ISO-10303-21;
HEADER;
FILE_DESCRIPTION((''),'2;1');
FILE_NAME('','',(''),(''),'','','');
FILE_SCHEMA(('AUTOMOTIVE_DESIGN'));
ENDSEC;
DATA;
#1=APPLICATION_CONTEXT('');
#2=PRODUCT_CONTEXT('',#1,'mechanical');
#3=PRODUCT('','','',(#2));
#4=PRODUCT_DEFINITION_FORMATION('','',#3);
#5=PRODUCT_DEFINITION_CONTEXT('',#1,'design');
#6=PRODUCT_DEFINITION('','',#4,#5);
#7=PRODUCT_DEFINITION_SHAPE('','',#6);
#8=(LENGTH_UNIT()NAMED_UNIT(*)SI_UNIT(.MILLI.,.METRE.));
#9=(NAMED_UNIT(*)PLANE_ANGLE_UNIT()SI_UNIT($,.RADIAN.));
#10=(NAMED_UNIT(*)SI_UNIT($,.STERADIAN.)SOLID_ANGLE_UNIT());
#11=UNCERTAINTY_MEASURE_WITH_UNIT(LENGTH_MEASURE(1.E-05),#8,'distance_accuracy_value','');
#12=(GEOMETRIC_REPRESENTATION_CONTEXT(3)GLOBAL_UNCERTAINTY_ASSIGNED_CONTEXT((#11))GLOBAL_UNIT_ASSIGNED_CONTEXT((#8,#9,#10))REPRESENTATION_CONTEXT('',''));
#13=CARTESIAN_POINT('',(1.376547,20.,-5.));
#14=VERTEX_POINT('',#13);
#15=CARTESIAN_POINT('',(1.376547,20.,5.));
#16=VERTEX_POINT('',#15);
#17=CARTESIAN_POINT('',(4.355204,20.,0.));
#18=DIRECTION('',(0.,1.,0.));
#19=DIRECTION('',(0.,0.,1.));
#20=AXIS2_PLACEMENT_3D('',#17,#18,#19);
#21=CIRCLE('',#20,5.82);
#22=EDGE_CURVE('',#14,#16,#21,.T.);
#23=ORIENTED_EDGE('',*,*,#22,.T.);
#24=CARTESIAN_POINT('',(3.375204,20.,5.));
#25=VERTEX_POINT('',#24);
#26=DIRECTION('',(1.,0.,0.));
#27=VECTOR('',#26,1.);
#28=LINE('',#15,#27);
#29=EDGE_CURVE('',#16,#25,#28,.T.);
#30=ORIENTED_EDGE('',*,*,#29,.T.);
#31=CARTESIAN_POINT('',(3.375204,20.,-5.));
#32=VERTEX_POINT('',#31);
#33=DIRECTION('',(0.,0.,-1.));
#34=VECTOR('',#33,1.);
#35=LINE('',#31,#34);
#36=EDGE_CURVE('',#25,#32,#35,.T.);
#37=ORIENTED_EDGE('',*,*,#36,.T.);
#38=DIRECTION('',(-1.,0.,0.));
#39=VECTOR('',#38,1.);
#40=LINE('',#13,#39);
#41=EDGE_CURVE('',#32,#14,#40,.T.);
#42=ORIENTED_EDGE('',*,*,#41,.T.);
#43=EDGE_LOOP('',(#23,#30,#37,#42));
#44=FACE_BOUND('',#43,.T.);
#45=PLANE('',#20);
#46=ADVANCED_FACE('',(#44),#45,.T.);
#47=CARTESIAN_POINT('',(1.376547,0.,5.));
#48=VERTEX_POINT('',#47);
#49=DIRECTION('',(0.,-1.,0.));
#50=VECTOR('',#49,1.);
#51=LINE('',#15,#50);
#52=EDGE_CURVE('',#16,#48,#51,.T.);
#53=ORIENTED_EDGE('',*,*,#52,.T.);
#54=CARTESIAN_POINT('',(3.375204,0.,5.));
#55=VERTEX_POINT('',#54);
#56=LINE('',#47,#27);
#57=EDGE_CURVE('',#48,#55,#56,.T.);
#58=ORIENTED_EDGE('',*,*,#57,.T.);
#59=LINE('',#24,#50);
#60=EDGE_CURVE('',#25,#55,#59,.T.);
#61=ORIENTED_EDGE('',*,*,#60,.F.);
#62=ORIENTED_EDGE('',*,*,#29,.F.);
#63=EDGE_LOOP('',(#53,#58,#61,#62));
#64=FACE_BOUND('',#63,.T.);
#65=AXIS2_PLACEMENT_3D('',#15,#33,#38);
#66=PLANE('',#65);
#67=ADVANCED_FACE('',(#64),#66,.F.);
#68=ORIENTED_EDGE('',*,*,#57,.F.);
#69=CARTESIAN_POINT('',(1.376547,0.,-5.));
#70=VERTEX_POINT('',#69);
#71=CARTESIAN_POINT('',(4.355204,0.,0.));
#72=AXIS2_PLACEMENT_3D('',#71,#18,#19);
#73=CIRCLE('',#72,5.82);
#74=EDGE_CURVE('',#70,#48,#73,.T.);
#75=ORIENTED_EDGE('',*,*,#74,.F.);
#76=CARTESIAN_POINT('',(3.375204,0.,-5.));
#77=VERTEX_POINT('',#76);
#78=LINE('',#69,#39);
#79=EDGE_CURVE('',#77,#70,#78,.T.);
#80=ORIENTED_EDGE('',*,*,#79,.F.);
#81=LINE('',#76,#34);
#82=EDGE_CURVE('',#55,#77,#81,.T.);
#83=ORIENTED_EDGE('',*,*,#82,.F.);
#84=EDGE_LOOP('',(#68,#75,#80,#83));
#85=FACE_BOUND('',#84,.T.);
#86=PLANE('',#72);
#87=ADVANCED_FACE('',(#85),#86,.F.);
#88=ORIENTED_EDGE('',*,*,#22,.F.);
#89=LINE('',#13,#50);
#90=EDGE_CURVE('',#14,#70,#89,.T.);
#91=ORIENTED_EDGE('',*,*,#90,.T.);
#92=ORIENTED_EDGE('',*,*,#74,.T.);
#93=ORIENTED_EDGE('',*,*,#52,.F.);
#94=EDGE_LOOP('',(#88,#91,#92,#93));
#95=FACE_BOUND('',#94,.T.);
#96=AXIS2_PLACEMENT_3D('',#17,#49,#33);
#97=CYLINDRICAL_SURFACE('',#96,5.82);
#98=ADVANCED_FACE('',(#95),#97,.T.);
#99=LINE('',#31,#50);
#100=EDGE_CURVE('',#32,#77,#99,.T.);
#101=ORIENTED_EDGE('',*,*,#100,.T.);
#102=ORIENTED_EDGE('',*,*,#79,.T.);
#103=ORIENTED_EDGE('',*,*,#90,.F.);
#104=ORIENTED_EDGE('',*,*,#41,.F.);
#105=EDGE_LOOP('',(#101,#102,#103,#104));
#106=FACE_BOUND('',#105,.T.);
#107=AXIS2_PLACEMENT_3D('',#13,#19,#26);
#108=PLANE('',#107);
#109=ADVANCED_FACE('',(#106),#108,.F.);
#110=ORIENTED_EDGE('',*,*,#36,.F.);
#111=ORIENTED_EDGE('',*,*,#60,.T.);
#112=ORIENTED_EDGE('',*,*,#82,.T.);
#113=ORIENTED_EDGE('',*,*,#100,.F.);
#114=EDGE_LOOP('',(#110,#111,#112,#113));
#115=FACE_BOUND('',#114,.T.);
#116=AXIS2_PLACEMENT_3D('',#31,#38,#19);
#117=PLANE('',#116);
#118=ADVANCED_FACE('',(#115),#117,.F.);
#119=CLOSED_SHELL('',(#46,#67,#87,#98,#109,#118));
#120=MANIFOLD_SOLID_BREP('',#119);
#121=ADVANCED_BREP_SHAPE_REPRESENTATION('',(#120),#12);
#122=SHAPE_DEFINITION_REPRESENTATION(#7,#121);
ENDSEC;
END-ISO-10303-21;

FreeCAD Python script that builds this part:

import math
import FreeCAD as App
import Part
import Sketcher

doc = App.newDocument("Part")
body = doc.addObject("PartDesign::Body", "Body")

sketch1 = body.newObject("Sketcher::SketchObject", "Sketch")
sketch1.AttachmentSupport = (doc.getObject("XZ_Plane"), [""])
sketch1.MapMode = "FlatFace"
sketch1.addGeometry(Part.LineSegment(App.Vector(3.4, -5, 0), App.Vector(1.4, -5, 0)), False)
sketch1.addGeometry(Part.ArcOfCircle(Part.Circle(App.Vector(4.4, 0, 0), App.Vector(0, 0, 1), 5.8), math.radians(121), math.radians(239)), False)
sketch1.addGeometry(Part.LineSegment(App.Vector(1.4, 5, 0), App.Vector(3.4, 5, 0)), False)
sketch1.addGeometry(Part.LineSegment(App.Vector(3.4, 5, 0), App.Vector(3.4, -5, 0)), False)
sketch1.addConstraint(Sketcher.Constraint("Coincident", 0, 2, 1, 2))
sketch1.addConstraint(Sketcher.Constraint("Coincident", 1, 1, 2, 1))
sketch1.addConstraint(Sketcher.Constraint("Coincident", 2, 2, 3, 1))
sketch1.addConstraint(Sketcher.Constraint("Coincident", 3, 2, 0, 1))
sketch1.addConstraint(Sketcher.Constraint("Horizontal", 0))
sketch1.addConstraint(Sketcher.Constraint("Horizontal", 2))
sketch1.addConstraint(Sketcher.Constraint("Vertical", 3))
sketch1.addConstraint(Sketcher.Constraint("Symmetric", 0, 2, 1, 1, -1))
sketch1.addConstraint(Sketcher.Constraint("DistanceY", 3, 2, 3, 1, 10.0))
sketch1.addConstraint(Sketcher.Constraint("Radius", 1, 5.82))
sketch1.addConstraint(Sketcher.Constraint("DistanceX", 2, 2, 1, 3, 0.98))
sketch1.addConstraint(Sketcher.Constraint("DistanceX", -1, 1, 1, 3, 4.355204))
pad1 = body.newObject("PartDesign::Pad", "Pad")
pad1.Profile = sketch1
pad1.Length = 20
pad1.Reversed = True

doc.recompute()
